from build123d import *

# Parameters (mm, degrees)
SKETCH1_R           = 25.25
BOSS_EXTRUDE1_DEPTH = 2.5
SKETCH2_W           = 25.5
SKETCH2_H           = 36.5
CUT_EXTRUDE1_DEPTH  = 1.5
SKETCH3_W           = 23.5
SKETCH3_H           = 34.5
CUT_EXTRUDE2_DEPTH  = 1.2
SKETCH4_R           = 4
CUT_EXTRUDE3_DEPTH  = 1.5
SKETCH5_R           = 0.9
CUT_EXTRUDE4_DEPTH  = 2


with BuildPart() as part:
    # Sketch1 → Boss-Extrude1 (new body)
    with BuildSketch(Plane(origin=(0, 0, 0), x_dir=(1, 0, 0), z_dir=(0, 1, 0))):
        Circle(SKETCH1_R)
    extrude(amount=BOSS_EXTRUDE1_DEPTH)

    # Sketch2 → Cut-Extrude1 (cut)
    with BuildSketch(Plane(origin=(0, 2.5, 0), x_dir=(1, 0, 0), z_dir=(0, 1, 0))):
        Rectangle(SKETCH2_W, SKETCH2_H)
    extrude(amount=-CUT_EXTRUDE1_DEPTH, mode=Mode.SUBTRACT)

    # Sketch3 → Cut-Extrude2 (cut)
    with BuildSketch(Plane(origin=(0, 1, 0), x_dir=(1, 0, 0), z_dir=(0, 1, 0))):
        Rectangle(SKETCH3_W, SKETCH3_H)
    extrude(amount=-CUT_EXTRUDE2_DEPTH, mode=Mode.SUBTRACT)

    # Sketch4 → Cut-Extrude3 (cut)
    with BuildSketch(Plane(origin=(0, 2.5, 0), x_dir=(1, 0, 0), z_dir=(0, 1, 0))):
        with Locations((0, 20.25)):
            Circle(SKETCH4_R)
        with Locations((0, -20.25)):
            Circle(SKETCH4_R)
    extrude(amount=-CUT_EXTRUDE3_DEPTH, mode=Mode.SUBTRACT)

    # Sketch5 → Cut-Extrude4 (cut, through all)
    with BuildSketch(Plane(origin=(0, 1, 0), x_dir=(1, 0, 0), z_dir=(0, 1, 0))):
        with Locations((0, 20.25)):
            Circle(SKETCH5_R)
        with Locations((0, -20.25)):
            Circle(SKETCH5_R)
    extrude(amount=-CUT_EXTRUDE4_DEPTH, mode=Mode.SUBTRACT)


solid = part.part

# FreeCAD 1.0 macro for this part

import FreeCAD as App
import Part
import Sketcher
from FreeCAD import Vector
Q = App.Units.Quantity

doc = App.newDocument("Part")
body = doc.addObject("PartDesign::Body", "Body")

# Sketch on XZ plane
sketch1 = body.newObject("Sketcher::SketchObject", "Sketch")
sketch1.AttachmentSupport = (doc.getObject("XZ_Plane"), [""])
sketch1.MapMode = "FlatFace"
sketch1.addGeometry(Part.Circle(Vector(0, 0, 0), Vector(0, 0, 1), 25), False)
sketch1.addConstraint([
    Sketcher.Constraint("Coincident", 0, 3, -1, 1),
    Sketcher.Constraint("Diameter", 0, Q("50.5 mm")),
])
pad1 = body.newObject("PartDesign::Pad", "Pad")
pad1.Profile = sketch1
pad1.Length = 2.5
pad1.Reversed = True

# Sketch on XZ plane
sketch2 = body.newObject("Sketcher::SketchObject", "Sketch001")
sketch2.AttachmentSupport = (doc.getObject("XZ_Plane"), [""])
sketch2.MapMode = "FlatFace"
sketch2.AttachmentOffset = App.Placement(Vector(0, 0, -2.5), App.Rotation())
sketch2.addGeometry([
    Part.LineSegment(Vector(-13, -18, 0), Vector(-13, 18, 0)),
    Part.LineSegment(Vector(-13, 18, 0), Vector(13, 18, 0)),
    Part.LineSegment(Vector(13, 18, 0), Vector(13, -18, 0)),
    Part.LineSegment(Vector(13, -18, 0), Vector(-13, -18, 0)),
], False)
sketch2.addConstraint([
    Sketcher.Constraint("Coincident", 0, 2, 1, 1),
    Sketcher.Constraint("Coincident", 1, 2, 2, 1),
    Sketcher.Constraint("Coincident", 2, 2, 3, 1),
    Sketcher.Constraint("Coincident", 3, 2, 0, 1),
    Sketcher.Constraint("Vertical", 0),
    Sketcher.Constraint("Horizontal", 1),
    Sketcher.Constraint("Vertical", 2),
    Sketcher.Constraint("Horizontal", 3),
    Sketcher.Constraint("Symmetric", 0, 2, 2, 2, -1, 1),
    Sketcher.Constraint("DistanceX", 1, 1, 1, 2, Q("25.5 mm")),
    Sketcher.Constraint("DistanceY", 0, 1, 0, 2, Q("36.5 mm")),
])
pocket1 = body.newObject("PartDesign::Pocket", "Pocket")
pocket1.Profile = sketch2
pocket1.Length = 1.5
pocket1.Reversed = True

# Sketch on XZ plane
sketch3 = body.newObject("Sketcher::SketchObject", "Sketch002")
sketch3.AttachmentSupport = (doc.getObject("XZ_Plane"), [""])
sketch3.MapMode = "FlatFace"
sketch3.AttachmentOffset = App.Placement(Vector(0, 0, -1), App.Rotation())
sketch3.addGeometry([
    Part.LineSegment(Vector(-12, -17, 0), Vector(-12, 17, 0)),
    Part.LineSegment(Vector(-12, 17, 0), Vector(12, 17, 0)),
    Part.LineSegment(Vector(12, 17, 0), Vector(12, -17, 0)),
    Part.LineSegment(Vector(12, -17, 0), Vector(-12, -17, 0)),
], False)
sketch3.addConstraint([
    Sketcher.Constraint("Coincident", 0, 2, 1, 1),
    Sketcher.Constraint("Coincident", 1, 2, 2, 1),
    Sketcher.Constraint("Coincident", 2, 2, 3, 1),
    Sketcher.Constraint("Coincident", 3, 2, 0, 1),
    Sketcher.Constraint("Vertical", 0),
    Sketcher.Constraint("Horizontal", 1),
    Sketcher.Constraint("Vertical", 2),
    Sketcher.Constraint("Horizontal", 3),
    Sketcher.Constraint("Symmetric", 0, 2, 2, 2, -1, 1),
    Sketcher.Constraint("DistanceX", 1, 1, 1, 2, Q("23.5 mm")),
    Sketcher.Constraint("DistanceY", 0, 1, 0, 2, Q("34.5 mm")),
])
pocket2 = body.newObject("PartDesign::Pocket", "Pocket001")
pocket2.Profile = sketch3
pocket2.Length = 1.2
pocket2.Reversed = True

# Sketch on XZ plane
sketch4 = body.newObject("Sketcher::SketchObject", "Sketch003")
sketch4.AttachmentSupport = (doc.getObject("XZ_Plane"), [""])
sketch4.MapMode = "FlatFace"
sketch4.AttachmentOffset = App.Placement(Vector(0, 0, -2.5), App.Rotation())
sketch4.addGeometry([
    Part.Circle(Vector(0, -20.2, 0), Vector(0, 0, 1), 4),
    Part.Circle(Vector(0, 20.2, 0), Vector(0, 0, 1), 4),
], False)
sketch4.addConstraint([
    Sketcher.Constraint("Equal", 0, 1),
    Sketcher.Constraint("Symmetric", 0, 3, 1, 3, -1, 1),
    Sketcher.Constraint("PointOnObject", 0, 3, -2),
    Sketcher.Constraint("Diameter", 0, Q("8 mm")),
    Sketcher.Constraint("DistanceY", 0, 3, 1, 3, Q("40.5 mm")),
])
pocket3 = body.newObject("PartDesign::Pocket", "Pocket002")
pocket3.Profile = sketch4
pocket3.Length = 1.5
pocket3.Reversed = True

# Sketch on XZ plane
sketch5 = body.newObject("Sketcher::SketchObject", "Sketch004")
sketch5.AttachmentSupport = (doc.getObject("XZ_Plane"), [""])
sketch5.MapMode = "FlatFace"
sketch5.AttachmentOffset = App.Placement(Vector(0, 0, -1), App.Rotation())
sketch5.addGeometry([
    Part.Circle(Vector(0, -20.2, 0), Vector(0, 0, 1), 0.9),
    Part.Circle(Vector(0, 20.2, 0), Vector(0, 0, 1), 0.9),
], False)
sketch5.addConstraint([
    Sketcher.Constraint("Equal", 0, 1),
    Sketcher.Constraint("Symmetric", 0, 3, 1, 3, -1, 1),
    Sketcher.Constraint("PointOnObject", 0, 3, -2),
    Sketcher.Constraint("Diameter", 0, Q("1.8 mm")),
    Sketcher.Constraint("DistanceY", 0, 3, 1, 3, Q("40.5 mm")),
])
pocket4 = body.newObject("PartDesign::Pocket", "Pocket003")
pocket4.Profile = sketch5
pocket4.Type = "ThroughAll"
pocket4.Reversed = True

doc.recompute()
